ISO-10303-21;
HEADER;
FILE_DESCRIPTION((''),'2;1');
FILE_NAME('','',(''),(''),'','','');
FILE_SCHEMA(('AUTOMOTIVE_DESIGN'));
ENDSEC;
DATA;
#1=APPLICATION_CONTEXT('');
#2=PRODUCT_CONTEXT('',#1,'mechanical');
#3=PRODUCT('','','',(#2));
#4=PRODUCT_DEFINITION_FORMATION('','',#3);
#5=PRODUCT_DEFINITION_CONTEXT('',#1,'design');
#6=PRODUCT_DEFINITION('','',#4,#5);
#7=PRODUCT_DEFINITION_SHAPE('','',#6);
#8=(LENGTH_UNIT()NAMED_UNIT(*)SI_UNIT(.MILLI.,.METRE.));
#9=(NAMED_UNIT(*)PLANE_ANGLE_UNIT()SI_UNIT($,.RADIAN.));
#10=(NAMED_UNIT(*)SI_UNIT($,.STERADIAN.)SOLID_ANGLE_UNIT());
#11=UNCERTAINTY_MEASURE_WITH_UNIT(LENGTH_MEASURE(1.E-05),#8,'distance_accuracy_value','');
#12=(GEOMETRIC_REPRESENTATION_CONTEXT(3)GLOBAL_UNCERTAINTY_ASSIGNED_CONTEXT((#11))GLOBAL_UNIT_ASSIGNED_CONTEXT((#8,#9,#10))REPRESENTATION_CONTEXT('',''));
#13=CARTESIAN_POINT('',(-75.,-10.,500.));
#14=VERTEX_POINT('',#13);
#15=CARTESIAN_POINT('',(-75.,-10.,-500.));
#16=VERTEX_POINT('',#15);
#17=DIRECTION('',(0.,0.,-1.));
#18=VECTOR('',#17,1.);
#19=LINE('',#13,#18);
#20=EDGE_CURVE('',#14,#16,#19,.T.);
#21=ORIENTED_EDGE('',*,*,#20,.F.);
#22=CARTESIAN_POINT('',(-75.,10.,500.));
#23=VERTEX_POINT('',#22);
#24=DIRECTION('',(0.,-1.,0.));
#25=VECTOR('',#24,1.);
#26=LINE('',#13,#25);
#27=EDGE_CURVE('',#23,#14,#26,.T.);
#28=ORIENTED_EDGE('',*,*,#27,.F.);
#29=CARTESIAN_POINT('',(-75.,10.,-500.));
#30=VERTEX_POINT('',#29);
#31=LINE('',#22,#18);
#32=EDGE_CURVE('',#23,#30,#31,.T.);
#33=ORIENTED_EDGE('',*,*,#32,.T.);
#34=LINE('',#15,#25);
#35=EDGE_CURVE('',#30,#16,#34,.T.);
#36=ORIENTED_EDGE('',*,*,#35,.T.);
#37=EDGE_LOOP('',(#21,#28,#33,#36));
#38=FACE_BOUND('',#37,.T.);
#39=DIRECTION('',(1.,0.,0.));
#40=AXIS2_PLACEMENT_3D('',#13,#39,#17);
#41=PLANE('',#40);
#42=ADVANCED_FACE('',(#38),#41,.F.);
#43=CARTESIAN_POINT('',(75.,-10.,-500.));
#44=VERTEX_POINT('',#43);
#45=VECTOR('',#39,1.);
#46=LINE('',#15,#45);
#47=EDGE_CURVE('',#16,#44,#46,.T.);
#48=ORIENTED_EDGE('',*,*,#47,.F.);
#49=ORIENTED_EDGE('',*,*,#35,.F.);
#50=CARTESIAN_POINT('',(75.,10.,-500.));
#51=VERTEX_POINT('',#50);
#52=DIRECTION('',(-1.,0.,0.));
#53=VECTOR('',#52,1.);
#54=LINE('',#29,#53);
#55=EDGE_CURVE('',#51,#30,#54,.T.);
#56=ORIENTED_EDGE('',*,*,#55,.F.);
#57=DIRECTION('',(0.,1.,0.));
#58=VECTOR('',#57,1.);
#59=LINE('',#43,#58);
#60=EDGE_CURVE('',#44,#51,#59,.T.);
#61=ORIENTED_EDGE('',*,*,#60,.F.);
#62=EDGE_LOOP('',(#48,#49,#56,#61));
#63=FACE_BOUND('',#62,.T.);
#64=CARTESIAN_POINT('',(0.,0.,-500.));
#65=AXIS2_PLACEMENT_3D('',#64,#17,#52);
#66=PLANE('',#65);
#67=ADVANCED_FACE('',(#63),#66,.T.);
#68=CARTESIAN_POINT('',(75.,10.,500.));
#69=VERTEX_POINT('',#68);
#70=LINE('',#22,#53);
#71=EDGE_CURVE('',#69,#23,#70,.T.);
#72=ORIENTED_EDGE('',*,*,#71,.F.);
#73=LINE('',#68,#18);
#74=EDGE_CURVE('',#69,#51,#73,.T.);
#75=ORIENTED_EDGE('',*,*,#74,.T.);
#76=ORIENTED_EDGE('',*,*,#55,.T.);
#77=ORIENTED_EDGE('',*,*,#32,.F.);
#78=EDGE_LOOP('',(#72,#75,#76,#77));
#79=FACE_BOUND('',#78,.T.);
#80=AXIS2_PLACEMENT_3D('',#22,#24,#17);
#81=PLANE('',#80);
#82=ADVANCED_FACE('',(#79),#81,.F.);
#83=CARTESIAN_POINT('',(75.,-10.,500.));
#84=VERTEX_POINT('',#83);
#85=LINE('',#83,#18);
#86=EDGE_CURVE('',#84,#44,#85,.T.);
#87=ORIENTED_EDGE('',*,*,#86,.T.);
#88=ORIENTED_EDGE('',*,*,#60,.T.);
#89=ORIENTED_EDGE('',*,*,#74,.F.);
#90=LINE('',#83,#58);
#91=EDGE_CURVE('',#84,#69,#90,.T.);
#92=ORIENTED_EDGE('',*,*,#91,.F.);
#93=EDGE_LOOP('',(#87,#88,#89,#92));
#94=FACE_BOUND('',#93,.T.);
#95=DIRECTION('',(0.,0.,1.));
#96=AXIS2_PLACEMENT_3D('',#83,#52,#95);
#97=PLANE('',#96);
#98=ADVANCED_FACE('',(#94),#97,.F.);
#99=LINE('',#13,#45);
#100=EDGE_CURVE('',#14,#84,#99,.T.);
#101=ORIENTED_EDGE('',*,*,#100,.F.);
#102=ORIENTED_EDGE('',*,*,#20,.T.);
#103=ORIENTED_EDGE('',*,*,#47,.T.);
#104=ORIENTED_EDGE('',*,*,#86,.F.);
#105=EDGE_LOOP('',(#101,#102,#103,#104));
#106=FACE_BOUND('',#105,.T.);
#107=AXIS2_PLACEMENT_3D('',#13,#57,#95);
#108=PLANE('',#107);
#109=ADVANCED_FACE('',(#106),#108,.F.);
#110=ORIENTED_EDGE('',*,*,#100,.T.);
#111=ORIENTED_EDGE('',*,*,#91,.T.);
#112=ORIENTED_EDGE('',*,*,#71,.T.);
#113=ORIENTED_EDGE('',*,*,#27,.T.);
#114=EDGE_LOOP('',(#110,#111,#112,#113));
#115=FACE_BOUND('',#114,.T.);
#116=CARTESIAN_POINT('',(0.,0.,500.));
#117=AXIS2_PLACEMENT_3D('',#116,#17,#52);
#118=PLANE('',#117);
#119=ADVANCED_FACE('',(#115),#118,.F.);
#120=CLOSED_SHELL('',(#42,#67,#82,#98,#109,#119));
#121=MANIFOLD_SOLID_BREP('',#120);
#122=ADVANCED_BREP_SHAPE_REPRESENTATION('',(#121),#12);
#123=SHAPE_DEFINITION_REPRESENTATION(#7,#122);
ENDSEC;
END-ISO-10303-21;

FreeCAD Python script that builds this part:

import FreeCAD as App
import Part
import Sketcher
Q = App.Units.Quantity


def add_polygon(sketch, points):
    """Adds a closed chain of lines whose ends are joined by coincident constraints."""
    first, n = sketch.GeometryCount, len(points)
    for a, b in zip(points, points[1:] + points[:1]):
        sketch.addGeometry(Part.LineSegment(App.Vector(*a, 0), App.Vector(*b, 0)), False)
    for i in range(n):
        sketch.addConstraint(Sketcher.Constraint("Coincident", first + i, 2, first + (i + 1) % n, 1))

doc = App.newDocument("Part")
body = doc.addObject("PartDesign::Body", "Body")

sketch1 = body.newObject("Sketcher::SketchObject", "Sketch")
sketch1.AttachmentSupport = (doc.getObject("XY_Plane"), [""])
sketch1.MapMode = "FlatFace"
add_polygon(sketch1, [(-75, 10), (-75, -10), (75, -10), (75, 10)])
sketch1.addConstraint(Sketcher.Constraint("Vertical", 0))
sketch1.addConstraint(Sketcher.Constraint("Horizontal", 1))
sketch1.addConstraint(Sketcher.Constraint("Vertical", 2))
sketch1.addConstraint(Sketcher.Constraint("Horizontal", 3))
sketch1.addConstraint(Sketcher.Constraint("Symmetric", 0, 2, 2, 2, -1, 1))
sketch1.addConstraint(Sketcher.Constraint("DistanceX", 1, 1, 1, 2, Q("150 mm")))
sketch1.addConstraint(Sketcher.Constraint("DistanceY", 0, 2, 0, 1, Q("20 mm")))
pad1 = body.newObject("PartDesign::Pad", "Pad")
pad1.Profile = sketch1
pad1.Length = 1000
pad1.Midplane = True

doc.recompute()
